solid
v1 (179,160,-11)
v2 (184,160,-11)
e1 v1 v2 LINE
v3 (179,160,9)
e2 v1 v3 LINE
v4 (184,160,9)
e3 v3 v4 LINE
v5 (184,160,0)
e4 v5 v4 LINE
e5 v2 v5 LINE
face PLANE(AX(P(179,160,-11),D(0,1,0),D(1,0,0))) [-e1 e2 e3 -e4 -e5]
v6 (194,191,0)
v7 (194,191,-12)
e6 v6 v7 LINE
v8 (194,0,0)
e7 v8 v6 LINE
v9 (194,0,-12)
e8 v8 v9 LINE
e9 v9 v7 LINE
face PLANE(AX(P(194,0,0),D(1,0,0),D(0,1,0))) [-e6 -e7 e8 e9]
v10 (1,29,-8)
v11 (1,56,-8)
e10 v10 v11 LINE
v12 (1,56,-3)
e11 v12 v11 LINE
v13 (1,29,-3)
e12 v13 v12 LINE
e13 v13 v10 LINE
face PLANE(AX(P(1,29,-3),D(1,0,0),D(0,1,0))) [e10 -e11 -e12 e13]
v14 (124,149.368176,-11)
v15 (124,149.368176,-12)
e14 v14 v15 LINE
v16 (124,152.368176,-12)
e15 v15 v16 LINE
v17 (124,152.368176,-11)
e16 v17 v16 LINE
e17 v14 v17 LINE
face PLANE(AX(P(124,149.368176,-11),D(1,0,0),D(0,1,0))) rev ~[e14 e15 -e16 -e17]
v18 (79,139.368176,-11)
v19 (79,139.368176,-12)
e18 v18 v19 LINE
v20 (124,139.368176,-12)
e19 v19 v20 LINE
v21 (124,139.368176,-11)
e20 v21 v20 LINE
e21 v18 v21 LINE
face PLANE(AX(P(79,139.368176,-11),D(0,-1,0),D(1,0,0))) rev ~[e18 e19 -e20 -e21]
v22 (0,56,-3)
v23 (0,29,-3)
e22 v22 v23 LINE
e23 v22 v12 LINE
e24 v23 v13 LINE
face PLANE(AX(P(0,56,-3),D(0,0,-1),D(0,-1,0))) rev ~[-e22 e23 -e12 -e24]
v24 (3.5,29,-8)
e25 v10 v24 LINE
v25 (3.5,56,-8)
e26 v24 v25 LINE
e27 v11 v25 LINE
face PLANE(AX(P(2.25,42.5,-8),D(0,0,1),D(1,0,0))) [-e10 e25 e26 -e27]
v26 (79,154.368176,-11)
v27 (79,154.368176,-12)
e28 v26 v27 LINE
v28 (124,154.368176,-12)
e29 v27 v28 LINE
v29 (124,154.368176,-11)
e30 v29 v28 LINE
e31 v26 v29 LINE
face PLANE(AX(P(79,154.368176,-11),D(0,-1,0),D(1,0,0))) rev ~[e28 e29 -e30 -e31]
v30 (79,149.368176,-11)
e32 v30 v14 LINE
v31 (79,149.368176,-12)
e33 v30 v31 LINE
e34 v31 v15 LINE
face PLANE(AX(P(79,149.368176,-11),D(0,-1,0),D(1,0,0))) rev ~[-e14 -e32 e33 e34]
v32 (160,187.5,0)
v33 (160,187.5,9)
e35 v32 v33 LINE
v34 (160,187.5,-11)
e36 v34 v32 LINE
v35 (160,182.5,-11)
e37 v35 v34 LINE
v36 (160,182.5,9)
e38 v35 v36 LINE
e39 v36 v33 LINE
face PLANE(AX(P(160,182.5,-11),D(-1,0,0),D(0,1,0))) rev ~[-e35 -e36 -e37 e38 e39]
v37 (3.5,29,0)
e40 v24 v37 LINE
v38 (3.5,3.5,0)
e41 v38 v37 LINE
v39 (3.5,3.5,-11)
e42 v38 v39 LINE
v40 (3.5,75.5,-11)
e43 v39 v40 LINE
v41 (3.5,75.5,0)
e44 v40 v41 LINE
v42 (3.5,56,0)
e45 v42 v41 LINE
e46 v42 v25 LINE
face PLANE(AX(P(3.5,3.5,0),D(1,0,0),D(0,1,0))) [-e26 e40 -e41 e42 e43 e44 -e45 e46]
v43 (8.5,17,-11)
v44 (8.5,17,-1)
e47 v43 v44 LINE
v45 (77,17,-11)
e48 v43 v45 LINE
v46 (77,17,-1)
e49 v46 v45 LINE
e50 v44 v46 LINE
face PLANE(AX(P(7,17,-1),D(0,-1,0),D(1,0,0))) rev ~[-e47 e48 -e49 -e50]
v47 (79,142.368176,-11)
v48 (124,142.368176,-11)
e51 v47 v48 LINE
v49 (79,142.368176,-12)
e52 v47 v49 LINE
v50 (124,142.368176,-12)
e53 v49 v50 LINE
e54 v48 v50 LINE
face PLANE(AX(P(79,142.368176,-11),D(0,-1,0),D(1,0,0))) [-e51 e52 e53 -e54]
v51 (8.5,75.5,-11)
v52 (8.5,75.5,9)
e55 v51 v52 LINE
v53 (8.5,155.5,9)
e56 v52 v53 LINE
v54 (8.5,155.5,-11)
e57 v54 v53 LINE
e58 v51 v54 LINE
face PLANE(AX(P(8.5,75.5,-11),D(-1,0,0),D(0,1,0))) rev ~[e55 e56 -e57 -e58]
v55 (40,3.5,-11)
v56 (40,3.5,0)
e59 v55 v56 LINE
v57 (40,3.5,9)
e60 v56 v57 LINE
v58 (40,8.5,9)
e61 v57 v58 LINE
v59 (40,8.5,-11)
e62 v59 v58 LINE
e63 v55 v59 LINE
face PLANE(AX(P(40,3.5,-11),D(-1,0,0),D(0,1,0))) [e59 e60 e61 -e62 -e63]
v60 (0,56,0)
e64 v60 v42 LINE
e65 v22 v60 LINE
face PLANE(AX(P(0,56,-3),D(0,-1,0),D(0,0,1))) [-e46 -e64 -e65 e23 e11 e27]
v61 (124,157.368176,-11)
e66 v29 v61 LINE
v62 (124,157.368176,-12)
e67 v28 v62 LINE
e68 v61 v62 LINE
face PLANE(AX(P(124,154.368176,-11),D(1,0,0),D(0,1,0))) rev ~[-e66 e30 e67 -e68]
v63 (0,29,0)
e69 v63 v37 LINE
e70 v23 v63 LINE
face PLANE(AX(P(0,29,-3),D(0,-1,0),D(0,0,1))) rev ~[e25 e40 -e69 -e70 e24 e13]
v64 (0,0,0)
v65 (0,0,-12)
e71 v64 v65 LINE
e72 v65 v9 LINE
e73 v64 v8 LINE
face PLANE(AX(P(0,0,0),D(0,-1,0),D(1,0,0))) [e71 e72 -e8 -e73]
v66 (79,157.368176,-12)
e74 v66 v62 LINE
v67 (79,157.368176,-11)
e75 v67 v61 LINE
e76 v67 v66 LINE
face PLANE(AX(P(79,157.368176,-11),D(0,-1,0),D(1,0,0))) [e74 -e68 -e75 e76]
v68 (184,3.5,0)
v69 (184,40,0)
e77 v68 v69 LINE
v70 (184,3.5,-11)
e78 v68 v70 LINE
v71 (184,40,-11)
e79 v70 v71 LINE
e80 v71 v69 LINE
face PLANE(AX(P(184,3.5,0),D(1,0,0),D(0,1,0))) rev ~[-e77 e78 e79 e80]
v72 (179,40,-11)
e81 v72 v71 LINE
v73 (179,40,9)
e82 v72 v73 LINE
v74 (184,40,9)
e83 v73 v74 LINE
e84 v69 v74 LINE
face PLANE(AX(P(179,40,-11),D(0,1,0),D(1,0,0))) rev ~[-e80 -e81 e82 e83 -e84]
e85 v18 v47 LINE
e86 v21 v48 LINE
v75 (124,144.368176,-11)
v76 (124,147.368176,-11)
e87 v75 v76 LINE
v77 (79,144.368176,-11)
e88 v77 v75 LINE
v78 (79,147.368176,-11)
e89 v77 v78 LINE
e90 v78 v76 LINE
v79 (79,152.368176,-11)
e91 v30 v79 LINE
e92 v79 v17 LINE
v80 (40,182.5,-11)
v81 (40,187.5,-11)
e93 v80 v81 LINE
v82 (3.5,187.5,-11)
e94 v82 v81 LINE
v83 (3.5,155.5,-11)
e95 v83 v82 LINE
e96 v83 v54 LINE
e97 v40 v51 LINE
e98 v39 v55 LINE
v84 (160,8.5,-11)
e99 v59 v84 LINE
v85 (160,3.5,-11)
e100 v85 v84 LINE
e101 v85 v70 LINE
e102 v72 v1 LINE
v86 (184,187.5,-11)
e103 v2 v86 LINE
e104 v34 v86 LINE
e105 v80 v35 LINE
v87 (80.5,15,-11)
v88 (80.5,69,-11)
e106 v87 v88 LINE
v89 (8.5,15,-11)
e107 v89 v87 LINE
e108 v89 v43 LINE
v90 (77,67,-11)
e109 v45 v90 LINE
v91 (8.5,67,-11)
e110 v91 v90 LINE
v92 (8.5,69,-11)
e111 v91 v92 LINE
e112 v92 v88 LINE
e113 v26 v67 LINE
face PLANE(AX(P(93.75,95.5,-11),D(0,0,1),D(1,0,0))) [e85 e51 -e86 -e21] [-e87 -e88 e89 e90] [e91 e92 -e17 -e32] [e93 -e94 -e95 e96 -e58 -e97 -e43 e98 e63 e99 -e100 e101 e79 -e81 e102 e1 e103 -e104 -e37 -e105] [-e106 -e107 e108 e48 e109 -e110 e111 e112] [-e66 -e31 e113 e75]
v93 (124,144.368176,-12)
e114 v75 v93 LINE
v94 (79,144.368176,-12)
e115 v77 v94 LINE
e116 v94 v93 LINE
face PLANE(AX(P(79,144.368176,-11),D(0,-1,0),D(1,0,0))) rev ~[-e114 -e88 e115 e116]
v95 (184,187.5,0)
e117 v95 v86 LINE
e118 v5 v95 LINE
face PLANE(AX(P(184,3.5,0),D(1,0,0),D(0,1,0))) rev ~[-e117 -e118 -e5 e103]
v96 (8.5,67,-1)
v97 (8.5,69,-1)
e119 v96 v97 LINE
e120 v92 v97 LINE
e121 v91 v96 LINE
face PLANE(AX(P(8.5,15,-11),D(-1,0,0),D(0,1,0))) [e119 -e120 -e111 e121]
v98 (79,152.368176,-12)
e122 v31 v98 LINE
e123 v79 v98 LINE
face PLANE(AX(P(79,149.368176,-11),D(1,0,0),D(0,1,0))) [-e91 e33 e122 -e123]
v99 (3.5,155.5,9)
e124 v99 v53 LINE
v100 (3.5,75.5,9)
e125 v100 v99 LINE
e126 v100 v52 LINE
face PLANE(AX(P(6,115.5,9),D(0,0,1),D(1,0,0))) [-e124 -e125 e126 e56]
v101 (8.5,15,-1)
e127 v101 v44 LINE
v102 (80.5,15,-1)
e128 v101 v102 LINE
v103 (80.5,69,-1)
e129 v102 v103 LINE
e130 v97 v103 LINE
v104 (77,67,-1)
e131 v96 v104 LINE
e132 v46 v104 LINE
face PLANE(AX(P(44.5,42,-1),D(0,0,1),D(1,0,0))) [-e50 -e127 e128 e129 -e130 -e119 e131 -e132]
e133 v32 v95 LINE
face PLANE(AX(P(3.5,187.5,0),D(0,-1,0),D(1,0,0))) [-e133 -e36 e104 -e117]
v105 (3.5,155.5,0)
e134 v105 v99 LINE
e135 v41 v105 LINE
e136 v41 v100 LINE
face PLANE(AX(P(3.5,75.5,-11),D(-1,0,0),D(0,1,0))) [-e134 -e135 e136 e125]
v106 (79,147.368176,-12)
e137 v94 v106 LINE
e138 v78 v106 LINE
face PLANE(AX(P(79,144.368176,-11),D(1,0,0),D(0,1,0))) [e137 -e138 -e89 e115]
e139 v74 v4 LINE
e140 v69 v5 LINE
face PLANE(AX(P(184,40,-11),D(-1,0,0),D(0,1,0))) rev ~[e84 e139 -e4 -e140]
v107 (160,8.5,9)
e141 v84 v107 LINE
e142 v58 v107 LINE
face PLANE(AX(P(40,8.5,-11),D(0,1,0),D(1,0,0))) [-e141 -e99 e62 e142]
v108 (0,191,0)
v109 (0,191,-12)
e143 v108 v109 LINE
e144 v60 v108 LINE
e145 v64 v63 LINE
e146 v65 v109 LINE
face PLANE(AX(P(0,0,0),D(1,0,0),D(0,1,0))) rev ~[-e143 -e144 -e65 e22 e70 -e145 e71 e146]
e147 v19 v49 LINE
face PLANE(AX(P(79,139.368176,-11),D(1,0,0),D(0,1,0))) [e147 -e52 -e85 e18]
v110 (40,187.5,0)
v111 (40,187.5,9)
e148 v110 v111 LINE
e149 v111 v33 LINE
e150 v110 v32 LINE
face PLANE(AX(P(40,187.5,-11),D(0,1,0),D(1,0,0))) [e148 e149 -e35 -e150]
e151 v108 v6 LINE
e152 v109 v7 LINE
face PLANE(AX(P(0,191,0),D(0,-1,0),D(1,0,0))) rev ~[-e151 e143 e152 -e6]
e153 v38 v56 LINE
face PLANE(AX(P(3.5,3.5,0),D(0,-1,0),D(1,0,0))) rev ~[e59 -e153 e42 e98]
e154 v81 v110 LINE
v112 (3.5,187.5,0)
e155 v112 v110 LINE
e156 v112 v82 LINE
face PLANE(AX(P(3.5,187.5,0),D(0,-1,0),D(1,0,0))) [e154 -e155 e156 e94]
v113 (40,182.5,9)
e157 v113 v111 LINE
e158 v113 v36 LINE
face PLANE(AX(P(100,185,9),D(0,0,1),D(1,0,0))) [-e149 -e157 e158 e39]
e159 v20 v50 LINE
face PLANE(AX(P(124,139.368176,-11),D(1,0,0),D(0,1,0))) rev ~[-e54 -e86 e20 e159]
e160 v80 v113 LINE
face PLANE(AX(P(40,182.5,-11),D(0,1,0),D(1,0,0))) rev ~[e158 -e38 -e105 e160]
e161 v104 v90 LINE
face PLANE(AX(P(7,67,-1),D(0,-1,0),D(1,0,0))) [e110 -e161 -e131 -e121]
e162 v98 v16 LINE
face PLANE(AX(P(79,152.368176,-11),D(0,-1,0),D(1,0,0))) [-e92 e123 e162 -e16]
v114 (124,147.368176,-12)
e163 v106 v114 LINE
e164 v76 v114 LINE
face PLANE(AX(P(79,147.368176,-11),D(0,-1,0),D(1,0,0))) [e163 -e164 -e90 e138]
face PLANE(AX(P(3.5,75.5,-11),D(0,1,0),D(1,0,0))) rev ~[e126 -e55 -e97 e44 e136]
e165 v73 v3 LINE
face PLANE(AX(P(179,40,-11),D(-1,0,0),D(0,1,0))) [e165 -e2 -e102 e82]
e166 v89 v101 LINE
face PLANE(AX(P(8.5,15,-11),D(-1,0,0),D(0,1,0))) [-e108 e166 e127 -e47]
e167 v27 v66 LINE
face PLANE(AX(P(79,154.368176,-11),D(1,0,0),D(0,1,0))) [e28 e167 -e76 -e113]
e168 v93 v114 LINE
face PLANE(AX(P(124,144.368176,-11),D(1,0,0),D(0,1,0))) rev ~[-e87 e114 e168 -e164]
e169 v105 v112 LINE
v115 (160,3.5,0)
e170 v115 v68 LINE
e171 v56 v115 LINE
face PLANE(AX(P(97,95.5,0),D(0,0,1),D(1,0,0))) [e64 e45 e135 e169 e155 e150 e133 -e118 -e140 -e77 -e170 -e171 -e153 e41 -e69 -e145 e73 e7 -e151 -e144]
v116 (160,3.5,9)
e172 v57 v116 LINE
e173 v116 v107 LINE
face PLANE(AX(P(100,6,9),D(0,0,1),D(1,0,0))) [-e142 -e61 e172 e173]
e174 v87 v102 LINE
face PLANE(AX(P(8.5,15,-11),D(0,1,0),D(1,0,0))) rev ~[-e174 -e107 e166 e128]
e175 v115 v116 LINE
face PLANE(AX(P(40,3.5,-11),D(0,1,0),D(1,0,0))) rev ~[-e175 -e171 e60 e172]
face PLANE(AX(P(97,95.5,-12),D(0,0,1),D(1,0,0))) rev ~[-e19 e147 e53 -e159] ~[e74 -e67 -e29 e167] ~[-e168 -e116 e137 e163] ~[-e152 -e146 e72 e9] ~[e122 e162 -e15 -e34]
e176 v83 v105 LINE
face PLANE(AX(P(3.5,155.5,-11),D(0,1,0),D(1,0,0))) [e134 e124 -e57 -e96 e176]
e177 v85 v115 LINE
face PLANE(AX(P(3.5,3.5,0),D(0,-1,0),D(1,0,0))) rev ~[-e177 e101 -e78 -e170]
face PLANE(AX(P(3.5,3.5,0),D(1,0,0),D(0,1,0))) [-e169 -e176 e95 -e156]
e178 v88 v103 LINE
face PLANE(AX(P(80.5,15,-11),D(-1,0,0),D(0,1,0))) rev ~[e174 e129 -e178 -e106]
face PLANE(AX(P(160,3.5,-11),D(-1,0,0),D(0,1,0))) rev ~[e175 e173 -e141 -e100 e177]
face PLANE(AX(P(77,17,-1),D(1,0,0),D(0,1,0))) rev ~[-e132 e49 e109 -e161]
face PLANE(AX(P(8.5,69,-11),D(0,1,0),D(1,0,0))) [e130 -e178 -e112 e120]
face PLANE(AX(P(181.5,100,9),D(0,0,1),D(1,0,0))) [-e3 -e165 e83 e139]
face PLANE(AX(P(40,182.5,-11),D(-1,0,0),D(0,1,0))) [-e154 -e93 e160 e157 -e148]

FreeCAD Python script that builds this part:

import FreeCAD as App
import Part
import Sketcher

V = App.Vector


def add_polygon(sketch, points):
    """Adds a closed chain of lines whose ends are joined by coincident constraints."""
    first, n = sketch.GeometryCount, len(points)
    for a, b in zip(points, points[1:] + points[:1]):
        sketch.addGeometry(Part.LineSegment(App.Vector(*a, 0), App.Vector(*b, 0)), False)
    for i in range(n):
        sketch.addConstraint(Sketcher.Constraint("Coincident", first + i, 2, first + (i + 1) % n, 1))

doc = App.newDocument("Part")
body = doc.addObject("PartDesign::Body", "Body")

# Sketch on XY plane
sketch1 = body.newObject("Sketcher::SketchObject", "Sketch")
sketch1.AttachmentSupport = (doc.getObject("XY_Plane"), [""])
sketch1.MapMode = "FlatFace"
add_polygon(sketch1, [(0, 191), (0, 0), (194, 0), (194, 191)])  # lines 0-3
sketch1.addConstraint([
    Sketcher.Constraint("Vertical", 0),
    Sketcher.Constraint("Horizontal", 1),
    Sketcher.Constraint("Vertical", 2),
    Sketcher.Constraint("Horizontal", 3),
    Sketcher.Constraint("Coincident", 0, 2, -1, 1),
    Sketcher.Constraint("DistanceX", 1, 1, 1, 2, 194.0),
    Sketcher.Constraint("DistanceY", 0, 2, 0, 1, 191.0),
])
pad1 = body.newObject("PartDesign::Pad", "Pad")
pad1.Profile = sketch1
pad1.Length = 12
pad1.Reversed = True

# Sketch on XY plane
sketch2 = body.newObject("Sketcher::SketchObject", "Sketch001")
sketch2.AttachmentSupport = (doc.getObject("XY_Plane"), [""])
sketch2.MapMode = "FlatFace"
add_polygon(sketch2, [(4, 188), (4, 4), (184, 4), (184, 188)])  # lines 0-3
sketch2.addConstraint([
    Sketcher.Constraint("Vertical", 0),
    Sketcher.Constraint("Horizontal", 1),
    Sketcher.Constraint("Vertical", 2),
    Sketcher.Constraint("Horizontal", 3),
    Sketcher.Constraint("DistanceY", 0, 2, 0, 1, 184.0),
    Sketcher.Constraint("DistanceX", 1, 1, 1, 2, 180.5),
    Sketcher.Constraint("DistanceX", -1, 1, 1, 2, 184.0),
    Sketcher.Constraint("DistanceY", -1, 1, 0, 2, 3.5),
])
pocket1 = body.newObject("PartDesign::Pocket", "Pocket")
pocket1.Profile = sketch2
pocket1.Length = 11

# Sketch on XY plane
sketch3 = body.newObject("Sketcher::SketchObject", "Sketch002")
sketch3.AttachmentSupport = (doc.getObject("XY_Plane"), [""])
sketch3.MapMode = "FlatFace"
sketch3.AttachmentOffset = App.Placement(V(0, 0, -11), App.Rotation())
add_polygon(sketch3, [(40, 188), (40, 182), (160, 182), (160, 188)])  # lines 0-3
add_polygon(sketch3, [(40, 8), (40, 4), (160, 4), (160, 8)])  # lines 4-7
add_polygon(sketch3, [(179, 160), (179, 40), (184, 40), (184, 160)])  # lines 8-11
add_polygon(sketch3, [(4, 156), (4, 76), (8, 76), (8, 156)])  # lines 12-15
sketch3.addConstraint([
    Sketcher.Constraint("Vertical", 0),
    Sketcher.Constraint("Horizontal", 1),
    Sketcher.Constraint("Vertical", 2),
    Sketcher.Constraint("Horizontal", 3),
    Sketcher.Constraint("Vertical", 4),
    Sketcher.Constraint("Horizontal", 5),
    Sketcher.Constraint("Vertical", 6),
    Sketcher.Constraint("Horizontal", 7),
    Sketcher.Constraint("Vertical", 8),
    Sketcher.Constraint("Horizontal", 9),
    Sketcher.Constraint("Vertical", 10),
    Sketcher.Constraint("Horizontal", 11),
    Sketcher.Constraint("Vertical", 12),
    Sketcher.Constraint("Horizontal", 13),
    Sketcher.Constraint("Vertical", 14),
    Sketcher.Constraint("Horizontal", 15),
    Sketcher.Constraint("Vertical", 3, 2, 4, 2),
    Sketcher.Constraint("Vertical", 2, 2, 5, 2),
    Sketcher.Constraint("Equal", 11, 13),
    Sketcher.Constraint("Equal", 15, 0),
    Sketcher.Constraint("Equal", 2, 4),
    Sketcher.Constraint("Equal", 7, 8),
    Sketcher.Constraint("DistanceX", 1, 1, 1, 2, 120.0),
    Sketcher.Constraint("DistanceX", 9, 1, 9, 2, 5.0),
    Sketcher.Constraint("DistanceY", 12, 2, 12, 1, 80.0),
    Sketcher.Constraint("DistanceX", -1, 1, 0, 2, 40.0),
    Sketcher.Constraint("DistanceX", -1, 1, 8, 2, 179.0),
    Sketcher.Constraint("DistanceY", -1, 1, 8, 2, 40.0),
    Sketcher.Constraint("DistanceY", 4, 2, 0, 2, 179.0),
    Sketcher.Constraint("DistanceY", 7, 2, 12, 2, 67.0),
    Sketcher.Constraint("DistanceY", -1, 1, 0, 2, 182.5),
    Sketcher.Constraint("DistanceX", -1, 1, 12, 2, 3.5),
])
pad2 = body.newObject("PartDesign::Pad", "Pad001")
pad2.Profile = sketch3
pad2.Length = 20

# Sketch on XY plane
sketch4 = body.newObject("Sketcher::SketchObject", "Sketch003")
sketch4.AttachmentSupport = (doc.getObject("XY_Plane"), [""])
sketch4.MapMode = "FlatFace"
sketch4.AttachmentOffset = App.Placement(V(0, 0, -11), App.Rotation())
add_polygon(sketch4, [(8, 69), (8, 15), (80, 15), (80, 69)])  # lines 0-3
sketch4.addConstraint([
    Sketcher.Constraint("Vertical", 0),
    Sketcher.Constraint("Horizontal", 1),
    Sketcher.Constraint("Vertical", 2),
    Sketcher.Constraint("Horizontal", 3),
    Sketcher.Constraint("DistanceX", 1, 1, 1, 2, 72.0),
    Sketcher.Constraint("DistanceY", 0, 2, 0, 1, 54.0),
    Sketcher.Constraint("DistanceY", -1, 1, 0, 2, 15.0),
    Sketcher.Constraint("DistanceX", -1, 1, 0, 2, 8.5),
])
pad3 = body.newObject("PartDesign::Pad", "Pad002")
pad3.Profile = sketch4
pad3.Length = 10

# Sketch on XY plane
sketch5 = body.newObject("Sketcher::SketchObject", "Sketch004")
sketch5.AttachmentSupport = (doc.getObject("XY_Plane"), [""])
sketch5.MapMode = "FlatFace"
sketch5.AttachmentOffset = App.Placement(V(0, 0, -1), App.Rotation())
add_polygon(sketch5, [(7, 67), (7, 17), (77, 17), (77, 67)])  # lines 0-3
sketch5.addConstraint([
    Sketcher.Constraint("Vertical", 0),
    Sketcher.Constraint("Horizontal", 1),
    Sketcher.Constraint("Vertical", 2),
    Sketcher.Constraint("Horizontal", 3),
    Sketcher.Constraint("DistanceX", 1, 1, 1, 2, 70.0),
    Sketcher.Constraint("DistanceY", 0, 2, 0, 1, 50.0),
    Sketcher.Constraint("DistanceX", -1, 1, 0, 2, 7.0),
    Sketcher.Constraint("DistanceY", -1, 1, 0, 2, 17.0),
])
pocket2 = body.newObject("PartDesign::Pocket", "Pocket001")
pocket2.Profile = sketch5
pocket2.Length = 10

# Sketch on YZ plane
sketch6 = body.newObject("Sketcher::SketchObject", "Sketch005")
sketch6.AttachmentSupport = (doc.getObject("YZ_Plane"), [""])
sketch6.MapMode = "FlatFace"
add_polygon(sketch6, [(56, 0), (56, -3), (29, -3), (29, 0)])  # lines 0-3
sketch6.addConstraint([
    Sketcher.Constraint("Vertical", 0),
    Sketcher.Constraint("Horizontal", 1),
    Sketcher.Constraint("Vertical", 2),
    Sketcher.Constraint("Horizontal", 3),
    Sketcher.Constraint("PointOnObject", 2, 2, -1),
    Sketcher.Constraint("DistanceX", 1, 2, 1, 1, 27.0),
    Sketcher.Constraint("DistanceY", 0, 2, 0, 1, 3.0),
    Sketcher.Constraint("DistanceX", -1, 1, 0, 2, 56.0),
])
pocket3 = body.newObject("PartDesign::Pocket", "Pocket002")
pocket3.Profile = sketch6
pocket3.Length = 5
pocket3.Reversed = True

# Sketch on XY plane
sketch7 = body.newObject("Sketcher::SketchObject", "Sketch006")
sketch7.AttachmentSupport = (doc.getObject("XY_Plane"), [""])
sketch7.MapMode = "FlatFace"
sketch7.AttachmentOffset = App.Placement(V(0, 0, -3), App.Rotation())
add_polygon(sketch7, [(1, 56), (1, 29), (3.5, 29), (3.5, 56)])  # lines 0-3
sketch7.addConstraint([
    Sketcher.Constraint("Vertical", 0),
    Sketcher.Constraint("Horizontal", 1),
    Sketcher.Constraint("Vertical", 2),
    Sketcher.Constraint("Horizontal", 3),
    Sketcher.Constraint("DistanceY", 0, 2, 0, 1, 27.0),
    Sketcher.Constraint("DistanceX", 1, 1, 1, 2, 2.5),
    Sketcher.Constraint("DistanceX", -1, 1, 0, 2, 1.0),
    Sketcher.Constraint("DistanceY", -1, 1, 0, 2, 29.0),
])
pocket4 = body.newObject("PartDesign::Pocket", "Pocket003")
pocket4.Profile = sketch7
pocket4.Length = 5

# Sketch on XY plane
sketch8 = body.newObject("Sketcher::SketchObject", "Sketch007")
sketch8.AttachmentSupport = (doc.getObject("XY_Plane"), [""])
sketch8.MapMode = "FlatFace"
sketch8.AttachmentOffset = App.Placement(V(0, 0, -11), App.Rotation())
add_polygon(sketch8, [(79, 157.4), (79, 154.4), (124, 154.4), (124, 157.4)])  # lines 0-3
sketch8.addConstraint([
    Sketcher.Constraint("Vertical", 0),
    Sketcher.Constraint("Horizontal", 1),
    Sketcher.Constraint("Vertical", 2),
    Sketcher.Constraint("Horizontal", 3),
    Sketcher.Constraint("DistanceX", 1, 1, 1, 2, 45.0),
    Sketcher.Constraint("DistanceY", 0, 2, 0, 1, 3.0),
    Sketcher.Constraint("DistanceX", -1, 1, 0, 2, 79.0),
    Sketcher.Constraint("DistanceY", -1, 1, 0, 2, 154.368176),
])
pocket5 = body.newObject("PartDesign::Pocket", "Pocket004")
pocket5.Profile = sketch8
pocket5.Length = 5
doc.recompute()

linearpattern = body.newObject("PartDesign::LinearPattern", "LinearPattern")
linearpattern.Originals = [pocket5]
linearpattern.Direction = (doc.getObject("Y_Axis"), [""])
linearpattern.Mode = "offset"
linearpattern.Offset = 5
linearpattern.Occurrences = 4
linearpattern.Reversed = True
body.Tip = linearpattern

doc.recompute()
